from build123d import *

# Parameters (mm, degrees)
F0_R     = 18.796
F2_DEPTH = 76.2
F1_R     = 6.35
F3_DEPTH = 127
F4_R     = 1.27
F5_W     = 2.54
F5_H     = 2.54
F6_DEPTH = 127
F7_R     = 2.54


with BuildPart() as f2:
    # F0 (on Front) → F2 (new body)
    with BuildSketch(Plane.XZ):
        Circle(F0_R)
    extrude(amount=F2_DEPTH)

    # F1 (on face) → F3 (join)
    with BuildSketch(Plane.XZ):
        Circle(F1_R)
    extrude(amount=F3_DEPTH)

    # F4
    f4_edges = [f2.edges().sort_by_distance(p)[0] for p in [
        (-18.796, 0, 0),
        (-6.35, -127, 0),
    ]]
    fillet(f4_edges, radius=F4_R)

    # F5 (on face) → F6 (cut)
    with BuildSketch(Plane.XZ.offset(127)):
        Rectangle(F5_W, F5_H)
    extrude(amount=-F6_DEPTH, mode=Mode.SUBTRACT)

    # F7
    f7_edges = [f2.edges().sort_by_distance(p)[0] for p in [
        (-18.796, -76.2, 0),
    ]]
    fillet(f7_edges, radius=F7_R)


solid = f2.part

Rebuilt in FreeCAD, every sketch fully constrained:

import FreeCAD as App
import Part
import Sketcher
from FreeCAD import Vector
Q = App.Units.Quantity


def edges_at(feature, points):
    """Names of the edges that pass closest to the given points."""
    edges = feature.Shape.Edges
    near = lambda p: min(range(len(edges)), key=lambda i: edges[i].distToShape(Part.Vertex(*p))[0])
    return sorted({f"Edge{near(p) + 1}" for p in points})

doc = App.newDocument("Part")
body = doc.addObject("PartDesign::Body", "Body")

sketch1 = doc.addObject("Sketcher::SketchObject", "Sketch")
body.addObject(sketch1)
sketch1.AttachmentSupport = (doc.XZ_Plane, [""])
sketch1.MapMode = "FlatFace"
sketch1.addGeometry(Part.Circle(Vector(0, 0, 0), Vector(0, 0, 1), 18.796), False)
sketch1.addConstraint(Sketcher.Constraint("Coincident", 0, 3, -1, 1))
sketch1.addConstraint(Sketcher.Constraint("Diameter", 0, Q("1.48 in")))
pad1 = doc.addObject("PartDesign::Pad", "Pad")
body.addObject(pad1)
pad1.Profile = sketch1
pad1.Length = Q("3 in")

sketch2 = doc.addObject("Sketcher::SketchObject", "Sketch001")
body.addObject(sketch2)
sketch2.AttachmentSupport = (doc.XZ_Plane, [""])
sketch2.MapMode = "FlatFace"
sketch2.addGeometry(Part.Circle(Vector(0, 0, 0), Vector(0, 0, 1), 6.35), False)
sketch2.addConstraint(Sketcher.Constraint("Coincident", 0, 3, -1, 1))
sketch2.addConstraint(Sketcher.Constraint("Diameter", 0, Q("0.5 in")))
pad2 = doc.addObject("PartDesign::Pad", "Pad001")
body.addObject(pad2)
pad2.Profile = sketch2
pad2.Length = Q("5 in")
doc.recompute()

fillet = doc.addObject("PartDesign::Fillet", "Fillet")
body.addObject(fillet)
fillet.Base = (pad2, edges_at(pad2, [(-18.796, 0, 0), (-6.35, -127, 0)]))
fillet.Radius = Q("0.05 in")

sketch3 = doc.addObject("Sketcher::SketchObject", "Sketch002")
body.addObject(sketch3)
sketch3.AttachmentSupport = (doc.XZ_Plane, [""])
sketch3.MapMode = "FlatFace"
sketch3.AttachmentOffset = App.Placement(Vector(0, 0, 5 * 25.4), App.Rotation())
sketch3.addGeometry(Part.LineSegment(Vector(-1.27, 1.27, 0), Vector(-1.27, -1.27, 0)), False)
sketch3.addGeometry(Part.LineSegment(Vector(-1.27, -1.27, 0), Vector(1.27, -1.27, 0)), False)
sketch3.addGeometry(Part.LineSegment(Vector(1.27, -1.27, 0), Vector(1.27, 1.27, 0)), False)
sketch3.addGeometry(Part.LineSegment(Vector(1.27, 1.27, 0), Vector(-1.27, 1.27, 0)), False)
sketch3.addConstraint(Sketcher.Constraint("Coincident", 0, 2, 1, 1))
sketch3.addConstraint(Sketcher.Constraint("Coincident", 1, 2, 2, 1))
sketch3.addConstraint(Sketcher.Constraint("Coincident", 2, 2, 3, 1))
sketch3.addConstraint(Sketcher.Constraint("Coincident", 3, 2, 0, 1))
sketch3.addConstraint(Sketcher.Constraint("Vertical", 0))
sketch3.addConstraint(Sketcher.Constraint("Horizontal", 1))
sketch3.addConstraint(Sketcher.Constraint("Vertical", 2))
sketch3.addConstraint(Sketcher.Constraint("Horizontal", 3))
sketch3.addConstraint(Sketcher.Constraint("Symmetric", 0, 2, 2, 2, -1, 1))
sketch3.addConstraint(Sketcher.Constraint("Equal", 3, 0))
sketch3.addConstraint(Sketcher.Constraint("DistanceX", 1, 1, 1, 2, Q("0.1 in")))
pocket1 = doc.addObject("PartDesign::Pocket", "Pocket")
body.addObject(pocket1)
pocket1.Profile = sketch3
pocket1.Length = Q("5 in")
doc.recompute()

fillet2 = doc.addObject("PartDesign::Fillet", "Fillet001")
body.addObject(fillet2)
fillet2.Base = (pocket1, edges_at(pocket1, [(-18.796, -76.2, 0)]))
fillet2.Radius = Q("0.1 in")

doc.recompute()
